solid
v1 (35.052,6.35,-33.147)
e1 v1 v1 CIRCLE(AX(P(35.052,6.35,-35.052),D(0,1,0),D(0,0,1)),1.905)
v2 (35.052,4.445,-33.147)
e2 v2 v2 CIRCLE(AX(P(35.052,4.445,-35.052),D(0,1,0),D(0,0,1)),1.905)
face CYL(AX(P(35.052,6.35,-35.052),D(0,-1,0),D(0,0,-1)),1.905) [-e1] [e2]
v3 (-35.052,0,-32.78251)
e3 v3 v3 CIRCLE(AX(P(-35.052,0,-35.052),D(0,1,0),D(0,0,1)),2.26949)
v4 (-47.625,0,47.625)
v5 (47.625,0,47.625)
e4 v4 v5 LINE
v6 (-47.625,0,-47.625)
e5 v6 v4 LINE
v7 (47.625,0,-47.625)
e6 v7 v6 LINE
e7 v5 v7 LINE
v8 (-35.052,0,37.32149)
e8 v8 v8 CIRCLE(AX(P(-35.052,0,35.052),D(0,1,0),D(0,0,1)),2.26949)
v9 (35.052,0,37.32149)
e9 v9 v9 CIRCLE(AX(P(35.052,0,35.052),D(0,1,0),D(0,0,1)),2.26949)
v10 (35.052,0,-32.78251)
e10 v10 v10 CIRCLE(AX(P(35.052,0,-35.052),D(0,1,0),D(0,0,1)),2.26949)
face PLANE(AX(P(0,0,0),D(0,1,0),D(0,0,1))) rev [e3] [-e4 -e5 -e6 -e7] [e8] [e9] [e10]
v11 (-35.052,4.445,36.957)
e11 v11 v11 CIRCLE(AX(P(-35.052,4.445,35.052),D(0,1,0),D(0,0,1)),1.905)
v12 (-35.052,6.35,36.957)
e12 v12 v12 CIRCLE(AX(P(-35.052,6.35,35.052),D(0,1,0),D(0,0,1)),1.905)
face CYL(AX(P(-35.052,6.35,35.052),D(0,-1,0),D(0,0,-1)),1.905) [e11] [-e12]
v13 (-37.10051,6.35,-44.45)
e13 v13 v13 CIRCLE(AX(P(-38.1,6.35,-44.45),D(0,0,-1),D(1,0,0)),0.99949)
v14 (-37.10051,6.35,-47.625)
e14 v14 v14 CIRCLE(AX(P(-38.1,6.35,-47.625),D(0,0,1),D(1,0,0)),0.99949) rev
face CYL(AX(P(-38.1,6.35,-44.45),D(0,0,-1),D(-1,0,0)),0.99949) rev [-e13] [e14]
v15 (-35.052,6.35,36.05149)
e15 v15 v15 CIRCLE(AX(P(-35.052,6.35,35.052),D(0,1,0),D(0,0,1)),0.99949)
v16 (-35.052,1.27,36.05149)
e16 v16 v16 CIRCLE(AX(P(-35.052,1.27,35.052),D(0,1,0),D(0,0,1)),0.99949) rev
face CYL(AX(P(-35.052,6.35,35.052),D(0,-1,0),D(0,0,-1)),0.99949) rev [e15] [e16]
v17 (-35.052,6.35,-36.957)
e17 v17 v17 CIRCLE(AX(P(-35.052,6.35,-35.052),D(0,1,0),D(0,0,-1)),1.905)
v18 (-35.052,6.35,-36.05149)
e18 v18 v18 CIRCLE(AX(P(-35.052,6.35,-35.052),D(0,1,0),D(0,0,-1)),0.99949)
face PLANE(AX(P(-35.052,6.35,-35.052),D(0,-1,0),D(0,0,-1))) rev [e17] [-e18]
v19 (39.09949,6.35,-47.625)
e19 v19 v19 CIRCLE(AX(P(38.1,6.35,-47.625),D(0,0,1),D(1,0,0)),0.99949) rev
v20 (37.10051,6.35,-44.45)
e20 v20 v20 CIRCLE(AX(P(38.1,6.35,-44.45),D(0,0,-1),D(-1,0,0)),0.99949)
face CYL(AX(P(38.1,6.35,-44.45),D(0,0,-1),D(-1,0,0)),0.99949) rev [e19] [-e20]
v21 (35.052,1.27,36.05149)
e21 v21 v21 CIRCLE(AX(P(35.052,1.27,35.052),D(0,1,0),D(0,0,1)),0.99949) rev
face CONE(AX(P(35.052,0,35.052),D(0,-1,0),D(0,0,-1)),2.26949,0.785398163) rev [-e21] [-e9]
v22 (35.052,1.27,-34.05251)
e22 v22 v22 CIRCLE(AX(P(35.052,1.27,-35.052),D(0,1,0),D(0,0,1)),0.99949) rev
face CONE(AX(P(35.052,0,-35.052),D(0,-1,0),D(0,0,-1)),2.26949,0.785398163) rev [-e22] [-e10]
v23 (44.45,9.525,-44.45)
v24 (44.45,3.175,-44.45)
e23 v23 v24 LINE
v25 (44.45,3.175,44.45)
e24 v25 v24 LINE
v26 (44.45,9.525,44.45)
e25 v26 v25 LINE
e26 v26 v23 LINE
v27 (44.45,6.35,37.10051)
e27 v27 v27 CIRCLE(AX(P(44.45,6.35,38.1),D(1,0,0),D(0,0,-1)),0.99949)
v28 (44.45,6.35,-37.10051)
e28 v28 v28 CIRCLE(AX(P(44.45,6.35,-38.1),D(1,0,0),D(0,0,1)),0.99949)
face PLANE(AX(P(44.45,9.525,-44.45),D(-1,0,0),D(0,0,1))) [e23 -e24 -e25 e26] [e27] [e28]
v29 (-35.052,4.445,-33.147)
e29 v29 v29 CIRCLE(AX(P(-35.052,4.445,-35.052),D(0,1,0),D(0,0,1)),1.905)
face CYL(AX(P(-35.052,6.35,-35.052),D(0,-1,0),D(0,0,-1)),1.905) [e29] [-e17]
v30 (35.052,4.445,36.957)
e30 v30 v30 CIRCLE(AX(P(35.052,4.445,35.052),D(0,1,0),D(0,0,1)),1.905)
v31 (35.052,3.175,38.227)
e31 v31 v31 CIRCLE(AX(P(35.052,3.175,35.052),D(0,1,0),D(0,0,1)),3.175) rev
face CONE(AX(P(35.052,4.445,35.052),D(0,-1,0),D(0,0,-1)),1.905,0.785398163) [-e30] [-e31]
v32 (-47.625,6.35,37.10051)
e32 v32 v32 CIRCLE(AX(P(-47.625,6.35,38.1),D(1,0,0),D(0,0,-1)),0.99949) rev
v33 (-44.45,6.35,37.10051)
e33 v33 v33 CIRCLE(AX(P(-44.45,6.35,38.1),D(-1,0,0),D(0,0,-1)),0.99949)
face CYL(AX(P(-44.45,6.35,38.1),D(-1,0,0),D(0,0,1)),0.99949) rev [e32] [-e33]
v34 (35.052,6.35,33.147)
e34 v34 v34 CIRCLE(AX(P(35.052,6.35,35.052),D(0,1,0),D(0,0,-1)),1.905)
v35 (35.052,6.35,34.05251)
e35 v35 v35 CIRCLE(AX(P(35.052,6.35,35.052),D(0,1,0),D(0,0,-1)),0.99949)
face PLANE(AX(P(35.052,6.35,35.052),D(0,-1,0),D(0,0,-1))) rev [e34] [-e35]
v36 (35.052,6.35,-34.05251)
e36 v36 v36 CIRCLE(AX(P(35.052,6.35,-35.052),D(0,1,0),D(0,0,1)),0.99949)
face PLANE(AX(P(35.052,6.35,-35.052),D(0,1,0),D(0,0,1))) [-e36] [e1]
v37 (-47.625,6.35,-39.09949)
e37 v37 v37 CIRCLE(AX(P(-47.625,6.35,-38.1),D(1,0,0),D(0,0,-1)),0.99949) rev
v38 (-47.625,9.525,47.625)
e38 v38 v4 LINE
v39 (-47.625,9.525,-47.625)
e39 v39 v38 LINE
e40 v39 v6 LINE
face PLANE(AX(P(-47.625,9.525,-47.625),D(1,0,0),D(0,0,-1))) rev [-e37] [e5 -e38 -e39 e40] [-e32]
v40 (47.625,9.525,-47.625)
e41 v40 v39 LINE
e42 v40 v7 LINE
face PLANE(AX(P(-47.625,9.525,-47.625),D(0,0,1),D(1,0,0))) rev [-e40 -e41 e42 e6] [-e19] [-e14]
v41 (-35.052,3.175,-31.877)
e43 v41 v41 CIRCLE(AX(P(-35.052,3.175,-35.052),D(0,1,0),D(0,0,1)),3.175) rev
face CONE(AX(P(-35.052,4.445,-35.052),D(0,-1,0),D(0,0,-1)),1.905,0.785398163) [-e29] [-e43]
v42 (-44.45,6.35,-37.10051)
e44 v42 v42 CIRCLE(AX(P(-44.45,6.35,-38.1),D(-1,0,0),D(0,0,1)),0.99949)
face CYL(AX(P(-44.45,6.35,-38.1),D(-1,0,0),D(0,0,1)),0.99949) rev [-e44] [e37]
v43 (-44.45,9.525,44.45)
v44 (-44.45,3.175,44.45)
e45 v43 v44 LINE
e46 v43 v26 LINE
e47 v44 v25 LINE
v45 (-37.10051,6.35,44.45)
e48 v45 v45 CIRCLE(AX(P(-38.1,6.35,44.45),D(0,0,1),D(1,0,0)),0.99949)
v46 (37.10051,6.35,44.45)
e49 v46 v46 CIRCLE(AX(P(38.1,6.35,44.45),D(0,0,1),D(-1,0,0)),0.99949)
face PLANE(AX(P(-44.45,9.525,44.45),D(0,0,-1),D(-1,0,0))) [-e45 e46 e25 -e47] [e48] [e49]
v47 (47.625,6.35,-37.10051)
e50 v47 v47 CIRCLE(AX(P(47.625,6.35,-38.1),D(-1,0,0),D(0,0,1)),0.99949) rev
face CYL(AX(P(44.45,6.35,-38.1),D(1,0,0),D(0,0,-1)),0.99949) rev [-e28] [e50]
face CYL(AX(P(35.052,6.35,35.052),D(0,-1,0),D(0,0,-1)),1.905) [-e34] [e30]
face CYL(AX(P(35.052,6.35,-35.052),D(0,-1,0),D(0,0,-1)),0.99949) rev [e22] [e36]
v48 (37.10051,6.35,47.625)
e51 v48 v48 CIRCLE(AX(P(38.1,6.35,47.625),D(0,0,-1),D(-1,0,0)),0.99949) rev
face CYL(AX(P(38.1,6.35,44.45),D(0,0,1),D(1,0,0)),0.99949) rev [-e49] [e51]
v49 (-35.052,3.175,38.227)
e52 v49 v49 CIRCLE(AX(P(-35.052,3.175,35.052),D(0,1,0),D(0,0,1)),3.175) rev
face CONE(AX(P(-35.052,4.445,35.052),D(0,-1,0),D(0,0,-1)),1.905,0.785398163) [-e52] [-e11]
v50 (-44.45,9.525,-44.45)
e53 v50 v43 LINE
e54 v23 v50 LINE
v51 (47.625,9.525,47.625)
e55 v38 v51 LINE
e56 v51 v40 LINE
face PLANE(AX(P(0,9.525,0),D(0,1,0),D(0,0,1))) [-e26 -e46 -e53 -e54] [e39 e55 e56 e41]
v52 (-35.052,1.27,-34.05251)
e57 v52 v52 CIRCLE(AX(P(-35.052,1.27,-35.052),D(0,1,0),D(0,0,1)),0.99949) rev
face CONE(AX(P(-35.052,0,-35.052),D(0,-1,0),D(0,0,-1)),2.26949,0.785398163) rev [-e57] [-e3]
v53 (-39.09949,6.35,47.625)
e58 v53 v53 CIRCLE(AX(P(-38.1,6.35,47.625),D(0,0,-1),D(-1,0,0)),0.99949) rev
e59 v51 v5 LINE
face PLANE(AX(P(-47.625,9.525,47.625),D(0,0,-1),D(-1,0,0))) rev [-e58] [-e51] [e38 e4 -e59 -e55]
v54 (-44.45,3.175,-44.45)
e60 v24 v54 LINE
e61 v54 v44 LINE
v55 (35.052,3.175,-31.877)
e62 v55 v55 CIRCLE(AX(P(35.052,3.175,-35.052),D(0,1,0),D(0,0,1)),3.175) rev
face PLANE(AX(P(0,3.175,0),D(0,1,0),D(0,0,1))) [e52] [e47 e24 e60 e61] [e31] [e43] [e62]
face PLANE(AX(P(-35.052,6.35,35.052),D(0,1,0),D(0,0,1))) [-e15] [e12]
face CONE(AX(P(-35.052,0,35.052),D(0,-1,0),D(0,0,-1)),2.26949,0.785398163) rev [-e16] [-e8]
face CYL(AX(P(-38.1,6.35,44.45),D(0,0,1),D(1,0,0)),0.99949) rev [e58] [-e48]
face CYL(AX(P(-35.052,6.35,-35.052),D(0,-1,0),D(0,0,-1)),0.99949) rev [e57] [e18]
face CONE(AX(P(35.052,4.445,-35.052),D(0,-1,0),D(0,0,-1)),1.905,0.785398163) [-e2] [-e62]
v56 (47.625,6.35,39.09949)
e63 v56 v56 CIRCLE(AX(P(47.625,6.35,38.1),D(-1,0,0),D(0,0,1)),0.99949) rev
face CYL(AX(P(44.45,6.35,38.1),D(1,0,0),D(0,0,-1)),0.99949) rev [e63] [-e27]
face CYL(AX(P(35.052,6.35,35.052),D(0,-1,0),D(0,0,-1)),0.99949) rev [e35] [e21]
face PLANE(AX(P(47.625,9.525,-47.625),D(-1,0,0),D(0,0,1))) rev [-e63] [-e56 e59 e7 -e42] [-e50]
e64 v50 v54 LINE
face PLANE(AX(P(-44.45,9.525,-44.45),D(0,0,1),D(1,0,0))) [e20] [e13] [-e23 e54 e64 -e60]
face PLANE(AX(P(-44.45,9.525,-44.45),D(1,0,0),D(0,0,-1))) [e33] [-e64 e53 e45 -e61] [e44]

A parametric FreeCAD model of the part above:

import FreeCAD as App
import Part
import Sketcher

V = App.Vector
Q = App.Units.Quantity


def edges_at(feature, points):
    """Names of the edges that pass closest to the given points."""
    edges = feature.Shape.Edges
    near = lambda p: min(range(len(edges)), key=lambda i: edges[i].distToShape(Part.Vertex(*p))[0])
    return sorted({f"Edge{near(p) + 1}" for p in points})


def add_polygon(sketch, points):
    """Adds a closed chain of lines whose ends are joined by coincident constraints."""
    first, n = sketch.GeometryCount, len(points)
    for a, b in zip(points, points[1:] + points[:1]):
        sketch.addGeometry(Part.LineSegment(App.Vector(*a, 0), App.Vector(*b, 0)), False)
    for i in range(n):
        sketch.addConstraint(Sketcher.Constraint("Coincident", first + i, 2, first + (i + 1) % n, 1))

doc = App.newDocument("Part")
body = doc.addObject("PartDesign::Body", "Body")

# Sketch on XZ plane
sketch1 = body.newObject("Sketcher::SketchObject", "Sketch")
sketch1.AttachmentSupport = (doc.getObject("XZ_Plane"), [""])
sketch1.MapMode = "FlatFace"
add_polygon(sketch1, [(-51, -51), (-51, 51), (51, 51), (51, -51)])  # lines 0-3
sketch1.addConstraint([
    Sketcher.Constraint("Vertical", 0),
    Sketcher.Constraint("Horizontal", 1),
    Sketcher.Constraint("Vertical", 2),
    Sketcher.Constraint("Horizontal", 3),
    Sketcher.Constraint("Symmetric", 0, 2, 2, 2, -1, 1),
    Sketcher.Constraint("Equal", 3, 0),
    Sketcher.Constraint("DistanceX", 1, 1, 1, 2, Q("4 in")),
])
pad1 = body.newObject("PartDesign::Pad", "Pad")
pad1.Profile = sketch1
pad1.Length = Q("0.125 in")
pad1.Reversed = True

# Sketch on XZ plane
sketch2 = body.newObject("Sketcher::SketchObject", "Sketch001")
sketch2.AttachmentSupport = (doc.getObject("XZ_Plane"), [""])
sketch2.MapMode = "FlatFace"
sketch2.AttachmentOffset = App.Placement(V(0, 0, -0.125 * 25.4), App.Rotation())
add_polygon(sketch2, [(-51, -51), (-51, 51), (51, 51), (51, -51)])  # lines 0-3
add_polygon(sketch2, [(44, 44), (-44, 44), (-44, -44), (44, -44)])  # lines 4-7
sketch2.addConstraint([
    Sketcher.Constraint("Vertical", 0),
    Sketcher.Constraint("Horizontal", 1),
    Sketcher.Constraint("Vertical", 2),
    Sketcher.Constraint("Horizontal", 3),
    Sketcher.Constraint("Horizontal", 4),
    Sketcher.Constraint("Vertical", 5),
    Sketcher.Constraint("Horizontal", 6),
    Sketcher.Constraint("Vertical", 7),
    Sketcher.Constraint("Symmetric", 0, 2, 2, 2, -1, 1),
    Sketcher.Constraint("Symmetric", 4, 2, 6, 2, -1, 1),
    Sketcher.Constraint("Equal", 3, 0),
    Sketcher.Constraint("Equal", 6, 5),
    Sketcher.Constraint("DistanceX", 1, 1, 1, 2, Q("4 in")),
    Sketcher.Constraint("DistanceX", 4, 2, 4, 1, Q("3.5 in")),
])
pad2 = body.newObject("PartDesign::Pad", "Pad001")
pad2.Profile = sketch2
pad2.Length = Q("0.25 in")
pad2.Reversed = True

# Sketch on XY plane
sketch3 = body.newObject("Sketcher::SketchObject", "Sketch002")
sketch3.AttachmentSupport = (doc.getObject("XY_Plane"), [""])
sketch3.MapMode = "FlatFace"
sketch3.AttachmentOffset = App.Placement(V(0, 0, 2 * 25.4), App.Rotation())
sketch3.addGeometry([
    Part.Circle(V(-38.1, 6.3, 0), V(0, 0, 1), 1),
    Part.Circle(V(38.1, 6.3, 0), V(0, 0, 1), 1),
], False)
sketch3.addConstraint([
    Sketcher.Constraint("Equal", 0, 1),
    Sketcher.Constraint("Symmetric", 0, 3, 1, 3, -2),
    Sketcher.Constraint("DistanceX", 0, 3, 1, 3, Q("3 in")),
    Sketcher.Constraint("Diameter", 0, Q("0.0787 in")),
    Sketcher.Constraint("DistanceY", -1, 1, 0, 3, Q("0.25 in")),
])
pocket1 = body.newObject("PartDesign::Pocket", "Pocket")
pocket1.Profile = sketch3
pocket1.Length = Q("0.25 in")
doc.recompute()

polarpattern = body.newObject("PartDesign::PolarPattern", "PolarPattern")
polarpattern.Originals = [pocket1]
polarpattern.Axis = (doc.getObject("Y_Axis"), [""])
polarpattern.Angle = 360
polarpattern.Occurrences = 4
body.Tip = polarpattern

# Sketch on XZ plane
sketch4 = body.newObject("Sketcher::SketchObject", "Sketch003")
sketch4.AttachmentSupport = (doc.getObject("XZ_Plane"), [""])
sketch4.MapMode = "FlatFace"
add_polygon(sketch4, [(-51, -51), (-51, 51), (51, 51), (51, -51)])  # lines 0-3
add_polygon(sketch4, [(48, 48), (-48, 48), (-48, -48), (48, -48)])  # lines 4-7
sketch4.addConstraint([
    Sketcher.Constraint("Vertical", 0),
    Sketcher.Constraint("Horizontal", 1),
    Sketcher.Constraint("Vertical", 2),
    Sketcher.Constraint("Horizontal", 3),
    Sketcher.Constraint("Horizontal", 4),
    Sketcher.Constraint("Vertical", 5),
    Sketcher.Constraint("Horizontal", 6),
    Sketcher.Constraint("Vertical", 7),
    Sketcher.Constraint("Symmetric", 0, 2, 2, 2, -1, 1),
    Sketcher.Constraint("Symmetric", 4, 2, 6, 2, -1, 1),
    Sketcher.Constraint("Equal", 3, 0),
    Sketcher.Constraint("Equal", 6, 5),
    Sketcher.Constraint("DistanceX", 1, 1, 1, 2, Q("4 in")),
    Sketcher.Constraint("DistanceX", 4, 2, 4, 1, Q("3.75 in")),
])
pocket2 = body.newObject("PartDesign::Pocket", "Pocket001")
pocket2.Profile = sketch4
pocket2.Length = Q("0.375 in")

# Sketch on XZ plane
sketch5 = body.newObject("Sketcher::SketchObject", "Sketch004")
sketch5.AttachmentSupport = (doc.getObject("XZ_Plane"), [""])
sketch5.MapMode = "FlatFace"
sketch5.AttachmentOffset = App.Placement(V(0, 0, -0.125 * 25.4), App.Rotation())
sketch5.addGeometry([
    Part.Circle(V(-35.1, 35.1, 0), V(0, 0, 1), 1.9),  # 0
    Part.Circle(V(-35.1, 35.1, 0), V(0, 0, 1), 1),  # 1
    Part.Circle(V(35.1, 35.1, 0), V(0, 0, 1), 1.9),  # 2
    Part.Circle(V(35.1, 35.1, 0), V(0, 0, 1), 1),  # 3
    Part.Circle(V(35.1, -35.1, 0), V(0, 0, 1), 1.9),  # 4
    Part.Circle(V(35.1, -35.1, 0), V(0, 0, 1), 1),  # 5
    Part.Circle(V(-35.1, -35.1, 0), V(0, 0, 1), 1.9),  # 6
    Part.Circle(V(-35.1, -35.1, 0), V(0, 0, 1), 1),  # 7
], False)
sketch5.addConstraint([
    Sketcher.Constraint("Coincident", 1, 3, 0, 3),
    Sketcher.Constraint("Coincident", 3, 3, 2, 3),
    Sketcher.Constraint("Coincident", 5, 3, 4, 3),
    Sketcher.Constraint("Coincident", 7, 3, 6, 3),
    Sketcher.Constraint("Equal", 0, 2),
    Sketcher.Constraint("Equal", 1, 3),
    Sketcher.Constraint("Equal", 2, 4),
    Sketcher.Constraint("Equal", 3, 5),
    Sketcher.Constraint("Equal", 4, 6),
    Sketcher.Constraint("Equal", 5, 7),
    Sketcher.Constraint("Symmetric", 0, 3, 4, 3, -1, 1),
    Sketcher.Constraint("Symmetric", 2, 3, 6, 3, -1, 1),
    Sketcher.Constraint("Symmetric", 0, 3, 2, 3, -2),
    Sketcher.Constraint("Diameter", 0, Q("0.15 in")),
    Sketcher.Constraint("Diameter", 1, Q("0.0787 in")),
    Sketcher.Constraint("DistanceX", 0, 3, -1, 1, Q("1.38 in")),
    Sketcher.Constraint("DistanceY", -1, 1, 0, 3, Q("1.38 in")),
])
pad3 = body.newObject("PartDesign::Pad", "Pad002")
pad3.Profile = sketch5
pad3.Length = Q("0.125 in")
pad3.Reversed = True

# Sketch on XZ plane
sketch6 = body.newObject("Sketcher::SketchObject", "Sketch005")
sketch6.AttachmentSupport = (doc.getObject("XZ_Plane"), [""])
sketch6.MapMode = "FlatFace"
sketch6.AttachmentOffset = App.Placement(V(0, 0, -0.25 * 25.4), App.Rotation())
sketch6.addGeometry([
    Part.Circle(V(-35.1, -35.1, 0), V(0, 0, 1), 1),
    Part.Circle(V(35.1, -35.1, 0), V(0, 0, 1), 1),
    Part.Circle(V(35.1, 35.1, 0), V(0, 0, 1), 1),
    Part.Circle(V(-35.1, 35.1, 0), V(0, 0, 1), 1),
], False)
sketch6.addConstraint([
    Sketcher.Constraint("Equal", 0, 1),
    Sketcher.Constraint("Equal", 1, 2),
    Sketcher.Constraint("Equal", 2, 3),
    Sketcher.Constraint("Symmetric", 0, 3, 2, 3, -1, 1),
    Sketcher.Constraint("Symmetric", 1, 3, 3, 3, -1, 1),
    Sketcher.Constraint("Symmetric", 0, 3, 1, 3, -2),
    Sketcher.Constraint("Diameter", 0, Q("0.0787 in")),
    Sketcher.Constraint("DistanceX", 0, 3, -1, 1, Q("1.38 in")),
    Sketcher.Constraint("DistanceY", 0, 3, -1, 1, Q("1.38 in")),
])
pocket3 = body.newObject("PartDesign::Pocket", "Pocket002")
pocket3.Profile = sketch6
pocket3.Type = "ThroughAll"
pocket3.Reversed = True
doc.recompute()

chamfer = body.newObject("PartDesign::Chamfer", "Chamfer")
chamfer.Base = (pocket3, edges_at(pocket3, [
    (-36.051, 0, 35.052),
    (34.053, 0, 35.052),
    (34.053, 0, -35.052),
    (-36.051, 0, -35.052),
]))
chamfer.Size = Q("0.05 in")
doc.recompute()

chamfer2 = body.newObject("PartDesign::Chamfer", "Chamfer001")
chamfer2.Base = (chamfer, edges_at(chamfer, [
    (-36.957, 3.175, 35.052),
    (33.147, 3.175, 35.052),
    (33.147, 3.175, -35.052),
    (-36.957, 3.175, -35.052),
]))
chamfer2.Size = Q("0.05 in")

doc.recompute()
